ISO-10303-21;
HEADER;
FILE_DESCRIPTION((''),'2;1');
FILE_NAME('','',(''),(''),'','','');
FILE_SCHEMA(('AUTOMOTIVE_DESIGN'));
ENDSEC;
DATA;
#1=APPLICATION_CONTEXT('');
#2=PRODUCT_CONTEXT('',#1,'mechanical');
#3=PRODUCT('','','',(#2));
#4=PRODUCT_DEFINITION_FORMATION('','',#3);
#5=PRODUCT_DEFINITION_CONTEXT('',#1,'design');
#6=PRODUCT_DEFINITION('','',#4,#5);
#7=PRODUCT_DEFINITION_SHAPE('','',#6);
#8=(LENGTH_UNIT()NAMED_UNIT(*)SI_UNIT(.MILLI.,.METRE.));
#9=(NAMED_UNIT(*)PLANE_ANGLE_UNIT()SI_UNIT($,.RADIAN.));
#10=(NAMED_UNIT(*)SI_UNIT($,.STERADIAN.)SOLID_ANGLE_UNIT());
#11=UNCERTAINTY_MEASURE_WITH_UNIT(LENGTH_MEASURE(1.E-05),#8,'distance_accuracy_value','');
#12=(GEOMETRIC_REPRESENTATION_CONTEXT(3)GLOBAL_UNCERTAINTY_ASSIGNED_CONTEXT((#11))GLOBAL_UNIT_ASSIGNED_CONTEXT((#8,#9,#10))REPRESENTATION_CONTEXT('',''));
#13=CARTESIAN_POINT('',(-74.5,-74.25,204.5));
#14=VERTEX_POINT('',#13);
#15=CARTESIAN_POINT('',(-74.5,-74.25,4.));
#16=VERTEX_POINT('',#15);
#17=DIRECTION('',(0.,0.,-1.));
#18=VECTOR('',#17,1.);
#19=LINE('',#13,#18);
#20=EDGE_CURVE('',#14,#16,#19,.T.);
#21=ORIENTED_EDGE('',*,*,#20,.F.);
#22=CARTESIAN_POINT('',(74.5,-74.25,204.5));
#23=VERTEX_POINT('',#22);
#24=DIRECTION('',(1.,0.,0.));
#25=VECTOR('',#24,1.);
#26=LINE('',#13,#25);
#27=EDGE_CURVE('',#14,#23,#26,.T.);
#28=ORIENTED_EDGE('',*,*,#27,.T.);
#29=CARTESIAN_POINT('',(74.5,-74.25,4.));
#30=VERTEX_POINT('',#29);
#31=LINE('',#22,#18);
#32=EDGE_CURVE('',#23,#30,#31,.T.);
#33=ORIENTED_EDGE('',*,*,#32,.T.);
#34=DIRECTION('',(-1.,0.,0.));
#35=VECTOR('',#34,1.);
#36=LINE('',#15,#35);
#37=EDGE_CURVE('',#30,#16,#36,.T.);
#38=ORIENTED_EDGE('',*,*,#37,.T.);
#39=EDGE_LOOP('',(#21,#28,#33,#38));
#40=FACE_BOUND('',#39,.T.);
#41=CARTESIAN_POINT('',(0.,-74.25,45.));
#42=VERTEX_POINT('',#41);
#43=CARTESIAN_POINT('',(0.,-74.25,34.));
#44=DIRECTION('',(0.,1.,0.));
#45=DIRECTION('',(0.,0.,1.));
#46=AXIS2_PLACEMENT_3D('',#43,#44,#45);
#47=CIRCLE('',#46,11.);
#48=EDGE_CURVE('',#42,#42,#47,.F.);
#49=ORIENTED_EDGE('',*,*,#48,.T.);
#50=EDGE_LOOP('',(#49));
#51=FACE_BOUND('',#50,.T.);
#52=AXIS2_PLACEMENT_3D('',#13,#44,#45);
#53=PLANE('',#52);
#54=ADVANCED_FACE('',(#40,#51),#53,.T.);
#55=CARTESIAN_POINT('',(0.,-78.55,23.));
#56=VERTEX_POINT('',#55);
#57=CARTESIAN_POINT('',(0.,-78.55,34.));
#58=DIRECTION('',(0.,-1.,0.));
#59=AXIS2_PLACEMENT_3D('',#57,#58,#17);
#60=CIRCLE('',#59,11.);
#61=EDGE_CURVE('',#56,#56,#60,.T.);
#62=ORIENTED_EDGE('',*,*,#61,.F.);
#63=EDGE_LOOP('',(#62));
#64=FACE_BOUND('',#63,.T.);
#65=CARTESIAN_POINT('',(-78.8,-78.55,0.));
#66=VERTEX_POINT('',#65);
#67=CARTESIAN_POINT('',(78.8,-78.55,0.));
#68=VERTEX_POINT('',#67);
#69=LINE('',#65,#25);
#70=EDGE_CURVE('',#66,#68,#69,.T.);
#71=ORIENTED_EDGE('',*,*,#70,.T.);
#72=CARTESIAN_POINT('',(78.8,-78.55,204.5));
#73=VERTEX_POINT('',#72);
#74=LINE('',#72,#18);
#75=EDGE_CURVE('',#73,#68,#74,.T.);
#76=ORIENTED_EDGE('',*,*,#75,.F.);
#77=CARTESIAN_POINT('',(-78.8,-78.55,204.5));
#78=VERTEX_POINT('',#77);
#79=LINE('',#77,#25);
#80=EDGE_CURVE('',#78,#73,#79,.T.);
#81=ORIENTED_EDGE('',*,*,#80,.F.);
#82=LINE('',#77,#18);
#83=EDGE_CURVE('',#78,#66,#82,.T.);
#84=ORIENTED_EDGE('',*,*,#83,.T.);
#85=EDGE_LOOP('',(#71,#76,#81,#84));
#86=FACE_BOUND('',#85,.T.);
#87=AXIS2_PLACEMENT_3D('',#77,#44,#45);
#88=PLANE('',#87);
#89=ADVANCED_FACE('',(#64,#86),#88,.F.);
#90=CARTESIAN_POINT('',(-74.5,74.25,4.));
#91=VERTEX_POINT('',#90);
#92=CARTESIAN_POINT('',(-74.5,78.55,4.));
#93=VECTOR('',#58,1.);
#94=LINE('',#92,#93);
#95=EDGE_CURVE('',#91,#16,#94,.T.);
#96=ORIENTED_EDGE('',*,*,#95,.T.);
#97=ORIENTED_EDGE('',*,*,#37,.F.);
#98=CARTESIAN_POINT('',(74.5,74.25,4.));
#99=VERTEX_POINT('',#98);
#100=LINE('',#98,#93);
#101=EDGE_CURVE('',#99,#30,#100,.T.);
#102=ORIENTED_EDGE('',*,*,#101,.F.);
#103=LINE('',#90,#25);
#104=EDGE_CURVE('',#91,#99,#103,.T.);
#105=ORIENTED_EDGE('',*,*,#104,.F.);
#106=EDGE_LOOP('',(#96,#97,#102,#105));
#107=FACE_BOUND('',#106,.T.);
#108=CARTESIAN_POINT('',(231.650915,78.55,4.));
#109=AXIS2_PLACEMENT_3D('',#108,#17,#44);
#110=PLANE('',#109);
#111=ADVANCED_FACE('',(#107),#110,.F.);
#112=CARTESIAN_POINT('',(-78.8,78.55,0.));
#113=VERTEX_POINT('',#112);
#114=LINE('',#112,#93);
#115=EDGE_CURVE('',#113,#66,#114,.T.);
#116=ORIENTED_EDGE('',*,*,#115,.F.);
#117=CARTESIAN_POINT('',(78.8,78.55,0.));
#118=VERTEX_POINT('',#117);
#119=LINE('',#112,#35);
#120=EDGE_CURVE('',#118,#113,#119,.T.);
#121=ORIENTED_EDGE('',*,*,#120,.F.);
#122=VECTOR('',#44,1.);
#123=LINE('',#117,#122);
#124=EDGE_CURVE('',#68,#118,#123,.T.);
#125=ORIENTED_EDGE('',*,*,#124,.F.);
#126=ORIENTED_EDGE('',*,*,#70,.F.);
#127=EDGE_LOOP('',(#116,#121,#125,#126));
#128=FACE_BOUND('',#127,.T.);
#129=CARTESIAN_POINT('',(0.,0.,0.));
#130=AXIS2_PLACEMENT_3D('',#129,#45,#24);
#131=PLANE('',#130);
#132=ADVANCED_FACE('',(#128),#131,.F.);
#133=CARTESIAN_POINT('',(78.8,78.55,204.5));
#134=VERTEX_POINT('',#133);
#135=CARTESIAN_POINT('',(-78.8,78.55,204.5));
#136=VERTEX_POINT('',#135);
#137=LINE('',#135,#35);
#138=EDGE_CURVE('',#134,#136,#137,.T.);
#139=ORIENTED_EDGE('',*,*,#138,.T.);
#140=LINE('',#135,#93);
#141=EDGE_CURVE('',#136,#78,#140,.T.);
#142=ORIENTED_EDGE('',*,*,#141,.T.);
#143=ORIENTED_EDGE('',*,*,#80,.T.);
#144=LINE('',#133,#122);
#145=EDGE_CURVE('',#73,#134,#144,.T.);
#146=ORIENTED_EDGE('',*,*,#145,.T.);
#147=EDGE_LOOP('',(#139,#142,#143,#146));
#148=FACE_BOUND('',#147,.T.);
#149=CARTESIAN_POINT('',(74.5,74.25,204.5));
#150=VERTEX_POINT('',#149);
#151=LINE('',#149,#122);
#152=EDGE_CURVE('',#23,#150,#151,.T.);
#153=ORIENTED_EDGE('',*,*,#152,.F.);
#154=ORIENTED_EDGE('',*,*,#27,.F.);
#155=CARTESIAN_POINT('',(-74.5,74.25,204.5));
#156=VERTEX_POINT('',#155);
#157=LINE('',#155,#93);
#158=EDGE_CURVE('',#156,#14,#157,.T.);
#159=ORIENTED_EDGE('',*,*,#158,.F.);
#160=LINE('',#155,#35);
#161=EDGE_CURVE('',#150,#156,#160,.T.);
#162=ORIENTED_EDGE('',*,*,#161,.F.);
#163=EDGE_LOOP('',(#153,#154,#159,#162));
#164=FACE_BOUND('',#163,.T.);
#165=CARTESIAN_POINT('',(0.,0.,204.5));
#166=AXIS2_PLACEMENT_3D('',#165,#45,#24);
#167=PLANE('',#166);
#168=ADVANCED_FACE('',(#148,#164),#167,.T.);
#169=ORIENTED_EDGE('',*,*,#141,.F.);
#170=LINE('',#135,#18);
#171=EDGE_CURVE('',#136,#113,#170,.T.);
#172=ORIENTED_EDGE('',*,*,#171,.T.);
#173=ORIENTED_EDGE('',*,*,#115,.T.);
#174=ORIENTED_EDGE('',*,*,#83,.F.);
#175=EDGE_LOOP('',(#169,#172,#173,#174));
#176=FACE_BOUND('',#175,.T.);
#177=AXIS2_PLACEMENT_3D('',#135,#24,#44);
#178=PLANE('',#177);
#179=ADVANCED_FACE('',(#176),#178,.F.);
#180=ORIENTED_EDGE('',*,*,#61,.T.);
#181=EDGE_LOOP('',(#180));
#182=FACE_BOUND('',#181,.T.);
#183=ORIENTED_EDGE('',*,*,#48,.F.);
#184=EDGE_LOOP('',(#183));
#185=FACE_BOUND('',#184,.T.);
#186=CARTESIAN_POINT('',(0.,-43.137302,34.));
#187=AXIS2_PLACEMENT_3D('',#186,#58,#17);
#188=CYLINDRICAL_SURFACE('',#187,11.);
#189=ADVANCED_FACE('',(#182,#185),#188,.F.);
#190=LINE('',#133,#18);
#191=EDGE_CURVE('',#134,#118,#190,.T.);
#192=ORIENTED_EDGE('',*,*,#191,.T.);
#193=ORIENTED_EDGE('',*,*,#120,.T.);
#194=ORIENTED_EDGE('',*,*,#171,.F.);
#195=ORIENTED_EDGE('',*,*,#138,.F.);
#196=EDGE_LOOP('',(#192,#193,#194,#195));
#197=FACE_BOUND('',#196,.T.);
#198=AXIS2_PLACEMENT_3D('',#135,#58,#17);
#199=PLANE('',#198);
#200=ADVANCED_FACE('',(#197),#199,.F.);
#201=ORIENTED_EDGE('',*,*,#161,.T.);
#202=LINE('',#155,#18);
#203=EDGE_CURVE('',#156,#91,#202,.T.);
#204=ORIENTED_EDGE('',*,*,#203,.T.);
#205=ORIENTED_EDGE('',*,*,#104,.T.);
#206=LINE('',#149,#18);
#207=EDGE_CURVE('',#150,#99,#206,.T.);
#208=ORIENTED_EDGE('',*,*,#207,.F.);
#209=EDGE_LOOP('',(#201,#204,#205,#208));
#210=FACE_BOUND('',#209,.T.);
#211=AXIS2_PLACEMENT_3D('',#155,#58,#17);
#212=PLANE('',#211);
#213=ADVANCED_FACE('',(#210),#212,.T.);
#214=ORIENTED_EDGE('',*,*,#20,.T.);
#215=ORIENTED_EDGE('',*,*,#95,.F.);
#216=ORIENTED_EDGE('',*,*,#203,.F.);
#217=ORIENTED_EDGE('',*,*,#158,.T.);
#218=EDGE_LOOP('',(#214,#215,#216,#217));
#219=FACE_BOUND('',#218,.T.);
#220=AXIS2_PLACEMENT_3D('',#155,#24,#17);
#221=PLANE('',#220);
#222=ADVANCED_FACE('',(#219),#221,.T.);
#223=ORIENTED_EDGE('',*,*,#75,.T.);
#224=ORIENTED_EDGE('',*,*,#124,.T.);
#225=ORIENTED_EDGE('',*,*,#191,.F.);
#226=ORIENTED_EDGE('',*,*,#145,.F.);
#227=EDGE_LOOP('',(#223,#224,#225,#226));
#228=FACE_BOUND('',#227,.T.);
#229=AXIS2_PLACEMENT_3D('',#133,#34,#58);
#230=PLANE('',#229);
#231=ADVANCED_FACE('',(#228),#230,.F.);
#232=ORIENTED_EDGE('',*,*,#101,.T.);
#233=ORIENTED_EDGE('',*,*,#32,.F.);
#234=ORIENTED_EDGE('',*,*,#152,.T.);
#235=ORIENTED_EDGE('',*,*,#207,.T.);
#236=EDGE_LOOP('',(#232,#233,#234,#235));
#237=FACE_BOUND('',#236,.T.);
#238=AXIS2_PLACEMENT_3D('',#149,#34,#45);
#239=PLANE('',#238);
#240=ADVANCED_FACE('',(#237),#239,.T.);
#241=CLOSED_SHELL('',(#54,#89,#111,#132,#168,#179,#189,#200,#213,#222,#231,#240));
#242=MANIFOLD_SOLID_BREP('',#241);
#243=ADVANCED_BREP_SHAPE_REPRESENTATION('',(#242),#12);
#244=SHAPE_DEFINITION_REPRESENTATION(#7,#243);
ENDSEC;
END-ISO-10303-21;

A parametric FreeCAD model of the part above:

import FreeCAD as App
import Part
import Sketcher

V = App.Vector


def add_polygon(sketch, points):
    """Adds a closed chain of lines whose ends are joined by coincident constraints."""
    first, n = sketch.GeometryCount, len(points)
    for a, b in zip(points, points[1:] + points[:1]):
        sketch.addGeometry(Part.LineSegment(App.Vector(*a, 0), App.Vector(*b, 0)), False)
    for i in range(n):
        sketch.addConstraint(Sketcher.Constraint("Coincident", first + i, 2, first + (i + 1) % n, 1))

doc = App.newDocument("Part")
body = doc.addObject("PartDesign::Body", "Body")

# Sketch on XY plane
sketch1 = body.newObject("Sketcher::SketchObject", "Sketch")
sketch1.AttachmentSupport = (doc.getObject("XY_Plane"), [""])
sketch1.MapMode = "FlatFace"
add_polygon(sketch1, [(-78.8, 78.55), (-78.8, -78.55), (78.8, -78.55), (78.8, 78.55)])  # lines 0-3
add_polygon(sketch1, [(74.5, -74.25), (-74.5, -74.25), (-74.5, 74.25), (74.5, 74.25)])  # lines 4-7
sketch1.addConstraint([
    Sketcher.Constraint("Vertical", 0),
    Sketcher.Constraint("Horizontal", 1),
    Sketcher.Constraint("Vertical", 2),
    Sketcher.Constraint("Horizontal", 3),
    Sketcher.Constraint("Horizontal", 4),
    Sketcher.Constraint("Vertical", 5),
    Sketcher.Constraint("Horizontal", 6),
    Sketcher.Constraint("Vertical", 7),
    Sketcher.Constraint("Symmetric", 0, 2, 2, 2, -1, 1),
    Sketcher.Constraint("Symmetric", 4, 2, 6, 2, -1, 1),
    Sketcher.Constraint("DistanceX", 4, 2, 4, 1, 149.0),
    Sketcher.Constraint("DistanceX", 1, 1, 1, 2, 157.6),
    Sketcher.Constraint("DistanceY", 0, 2, 0, 1, 157.1),
    Sketcher.Constraint("DistanceY", 5, 1, 5, 2, 148.5),
])
pad1 = body.newObject("PartDesign::Pad", "Pad")
pad1.Profile = sketch1
pad1.Length = 204.5

# Sketch on YZ plane
sketch2 = body.newObject("Sketcher::SketchObject", "Sketch001")
sketch2.AttachmentSupport = (doc.getObject("YZ_Plane"), [""])
sketch2.MapMode = "FlatFace"
sketch2.AttachmentOffset = App.Placement(V(0, 0, -74.5), App.Rotation())
add_polygon(sketch2, [(78.55, 4), (-78.55, 4), (-78.55, 0), (78.55, 0)])  # lines 0-3
sketch2.addConstraint([
    Sketcher.Constraint("Horizontal", 0),
    Sketcher.Constraint("Vertical", 1),
    Sketcher.Constraint("Horizontal", 2),
    Sketcher.Constraint("Vertical", 3),
    Sketcher.Constraint("Symmetric", 1, 2, 2, 2, -1, 1),
    Sketcher.Constraint("DistanceY", 1, 2, 1, 1, 4.0),
    Sketcher.Constraint("DistanceX", 0, 2, 0, 1, 157.1),
])
pad2 = body.newObject("PartDesign::Pad", "Pad001")
pad2.Profile = sketch2
pad2.Length = 149

# Sketch on XZ plane
sketch3 = body.newObject("Sketcher::SketchObject", "Sketch002")
sketch3.AttachmentSupport = (doc.getObject("XZ_Plane"), [""])
sketch3.MapMode = "FlatFace"
sketch3.AttachmentOffset = App.Placement(V(0, 0, 78.55), App.Rotation())
sketch3.addGeometry(Part.Circle(V(0, 34, 0), V(0, 0, 1), 11), False)
sketch3.addConstraint([
    Sketcher.Constraint("PointOnObject", 0, 3, -2),
    Sketcher.Constraint("Diameter", 0, 22.0),
    Sketcher.Constraint("DistanceY", -1, 1, 0, 3, 34.0),
])
pocket1 = body.newObject("PartDesign::Pocket", "Pocket")
pocket1.Profile = sketch3
pocket1.Length = 4.3

doc.recompute()
